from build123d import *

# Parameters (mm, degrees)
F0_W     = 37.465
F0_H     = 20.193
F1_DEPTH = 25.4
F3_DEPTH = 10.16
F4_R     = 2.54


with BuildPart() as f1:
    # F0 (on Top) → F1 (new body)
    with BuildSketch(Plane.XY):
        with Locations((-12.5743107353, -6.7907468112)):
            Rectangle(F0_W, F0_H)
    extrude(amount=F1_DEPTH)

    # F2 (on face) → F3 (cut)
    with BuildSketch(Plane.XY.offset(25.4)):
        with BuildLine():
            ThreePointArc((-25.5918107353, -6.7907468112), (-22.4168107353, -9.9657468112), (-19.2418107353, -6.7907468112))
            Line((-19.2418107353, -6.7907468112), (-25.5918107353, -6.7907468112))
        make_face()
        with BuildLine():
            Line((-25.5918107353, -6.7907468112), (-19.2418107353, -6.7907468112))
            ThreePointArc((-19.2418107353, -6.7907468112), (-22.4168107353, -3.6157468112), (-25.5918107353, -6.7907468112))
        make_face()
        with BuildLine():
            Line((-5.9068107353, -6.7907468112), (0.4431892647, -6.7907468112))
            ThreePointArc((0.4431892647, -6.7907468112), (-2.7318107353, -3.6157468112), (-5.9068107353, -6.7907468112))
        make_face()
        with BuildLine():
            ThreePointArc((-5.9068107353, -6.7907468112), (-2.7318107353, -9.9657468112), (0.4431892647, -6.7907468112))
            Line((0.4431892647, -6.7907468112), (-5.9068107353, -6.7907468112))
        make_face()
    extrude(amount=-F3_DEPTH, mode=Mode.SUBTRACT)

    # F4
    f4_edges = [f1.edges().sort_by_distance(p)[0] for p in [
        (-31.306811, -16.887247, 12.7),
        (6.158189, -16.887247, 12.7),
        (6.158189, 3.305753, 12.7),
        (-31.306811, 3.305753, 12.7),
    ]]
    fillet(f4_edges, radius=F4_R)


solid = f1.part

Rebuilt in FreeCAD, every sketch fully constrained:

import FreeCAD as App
import Part
import Sketcher
Q = App.Units.Quantity


def edges_at(feature, points):
    """Names of the edges that pass closest to the given points."""
    edges = feature.Shape.Edges
    near = lambda p: min(range(len(edges)), key=lambda i: edges[i].distToShape(Part.Vertex(*p))[0])
    return sorted({f"Edge{near(p) + 1}" for p in points})


def add_polygon(sketch, points):
    """Adds a closed chain of lines whose ends are joined by coincident constraints."""
    first, n = sketch.GeometryCount, len(points)
    for a, b in zip(points, points[1:] + points[:1]):
        sketch.addGeometry(Part.LineSegment(App.Vector(*a, 0), App.Vector(*b, 0)), False)
    for i in range(n):
        sketch.addConstraint(Sketcher.Constraint("Coincident", first + i, 2, first + (i + 1) % n, 1))

doc = App.newDocument("Part")
body = doc.addObject("PartDesign::Body", "Body")

sketch1 = body.newObject("Sketcher::SketchObject", "Sketch")
sketch1.AttachmentSupport = (doc.getObject("XY_Plane"), [""])
sketch1.MapMode = "FlatFace"
add_polygon(sketch1, [(-31, 3), (-31, -17), (6, -17), (6, 3)])
sketch1.addConstraint([
    Sketcher.Constraint("Vertical", 0),
    Sketcher.Constraint("Horizontal", 1),
    Sketcher.Constraint("Vertical", 2),
    Sketcher.Constraint("Horizontal", 3),
    Sketcher.Constraint("DistanceX", 1, 1, 1, 2, Q("1.475 in")),
    Sketcher.Constraint("DistanceY", 0, 2, 0, 1, Q("0.795 in")),
    Sketcher.Constraint("DistanceX", 0, 2, -1, 1, 31.306811),
    Sketcher.Constraint("DistanceY", 0, 2, -1, 1, 16.887247),
])
pad1 = body.newObject("PartDesign::Pad", "Pad")
pad1.Profile = sketch1
pad1.Length = Q("1 in")

sketch2 = body.newObject("Sketcher::SketchObject", "Sketch001")
sketch2.AttachmentSupport = (doc.getObject("XY_Plane"), [""])
sketch2.MapMode = "FlatFace"
sketch2.AttachmentOffset = App.Placement(App.Vector(0, 0, 1 * 25.4), App.Rotation())
sketch2.addGeometry([
    Part.Circle(App.Vector(-22.4, -6.8, 0), App.Vector(0, 0, 1), 3.2),
    Part.Circle(App.Vector(-2.7, -6.8, 0), App.Vector(0, 0, 1), 3.2),
], False)
sketch2.addConstraint([
    Sketcher.Constraint("Equal", 0, 1),
    Sketcher.Constraint("Horizontal", 0, 3, 1, 3),
    Sketcher.Constraint("Diameter", 0, Q("0.25 in")),
    Sketcher.Constraint("DistanceX", 0, 3, 1, 3, Q("0.775 in")),
    Sketcher.Constraint("DistanceX", 0, 3, -1, 1, 22.416811),
    Sketcher.Constraint("DistanceY", 0, 3, -1, 1, 6.790747),
])
pocket1 = body.newObject("PartDesign::Pocket", "Pocket")
pocket1.Profile = sketch2
pocket1.Length = Q("0.4 in")
doc.recompute()

fillet = body.newObject("PartDesign::Fillet", "Fillet")
fillet.Base = (pocket1, edges_at(pocket1, [
    (-31.307, -16.887, 12.7),
    (6.158, -16.887, 12.7),
    (6.158, 3.306, 12.7),
    (-31.307, 3.306, 12.7),
]))
fillet.Radius = Q("0.1 in")

doc.recompute()
